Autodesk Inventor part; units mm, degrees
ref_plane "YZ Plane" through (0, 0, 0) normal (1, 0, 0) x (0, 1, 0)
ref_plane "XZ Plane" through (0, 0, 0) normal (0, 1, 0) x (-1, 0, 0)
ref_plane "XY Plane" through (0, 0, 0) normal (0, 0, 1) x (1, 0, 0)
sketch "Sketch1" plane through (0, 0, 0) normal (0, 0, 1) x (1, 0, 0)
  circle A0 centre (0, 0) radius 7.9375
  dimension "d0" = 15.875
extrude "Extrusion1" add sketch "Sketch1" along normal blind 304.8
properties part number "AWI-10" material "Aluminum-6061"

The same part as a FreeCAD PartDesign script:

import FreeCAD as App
import Part
import Sketcher

V = App.Vector
Q = App.Units.Quantity

doc = App.newDocument("Part")
body = doc.addObject("PartDesign::Body", "Body")

sketch1 = body.newObject("Sketcher::SketchObject", "Sketch")
sketch1.AttachmentSupport = (doc.getObject("XY_Plane"), [""])
sketch1.MapMode = "FlatFace"
sketch1.addGeometry(Part.Circle(V(0, 0, 0), V(0, 0, 1), 8), False)
sketch1.addConstraint([
    Sketcher.Constraint("Coincident", 0, 3, -1, 1),
    Sketcher.Constraint("Diameter", 0, Q("0.625 in")),
])
pad1 = body.newObject("PartDesign::Pad", "Pad")
pad1.Profile = sketch1
pad1.Length = Q("12 in")

doc.recompute()
